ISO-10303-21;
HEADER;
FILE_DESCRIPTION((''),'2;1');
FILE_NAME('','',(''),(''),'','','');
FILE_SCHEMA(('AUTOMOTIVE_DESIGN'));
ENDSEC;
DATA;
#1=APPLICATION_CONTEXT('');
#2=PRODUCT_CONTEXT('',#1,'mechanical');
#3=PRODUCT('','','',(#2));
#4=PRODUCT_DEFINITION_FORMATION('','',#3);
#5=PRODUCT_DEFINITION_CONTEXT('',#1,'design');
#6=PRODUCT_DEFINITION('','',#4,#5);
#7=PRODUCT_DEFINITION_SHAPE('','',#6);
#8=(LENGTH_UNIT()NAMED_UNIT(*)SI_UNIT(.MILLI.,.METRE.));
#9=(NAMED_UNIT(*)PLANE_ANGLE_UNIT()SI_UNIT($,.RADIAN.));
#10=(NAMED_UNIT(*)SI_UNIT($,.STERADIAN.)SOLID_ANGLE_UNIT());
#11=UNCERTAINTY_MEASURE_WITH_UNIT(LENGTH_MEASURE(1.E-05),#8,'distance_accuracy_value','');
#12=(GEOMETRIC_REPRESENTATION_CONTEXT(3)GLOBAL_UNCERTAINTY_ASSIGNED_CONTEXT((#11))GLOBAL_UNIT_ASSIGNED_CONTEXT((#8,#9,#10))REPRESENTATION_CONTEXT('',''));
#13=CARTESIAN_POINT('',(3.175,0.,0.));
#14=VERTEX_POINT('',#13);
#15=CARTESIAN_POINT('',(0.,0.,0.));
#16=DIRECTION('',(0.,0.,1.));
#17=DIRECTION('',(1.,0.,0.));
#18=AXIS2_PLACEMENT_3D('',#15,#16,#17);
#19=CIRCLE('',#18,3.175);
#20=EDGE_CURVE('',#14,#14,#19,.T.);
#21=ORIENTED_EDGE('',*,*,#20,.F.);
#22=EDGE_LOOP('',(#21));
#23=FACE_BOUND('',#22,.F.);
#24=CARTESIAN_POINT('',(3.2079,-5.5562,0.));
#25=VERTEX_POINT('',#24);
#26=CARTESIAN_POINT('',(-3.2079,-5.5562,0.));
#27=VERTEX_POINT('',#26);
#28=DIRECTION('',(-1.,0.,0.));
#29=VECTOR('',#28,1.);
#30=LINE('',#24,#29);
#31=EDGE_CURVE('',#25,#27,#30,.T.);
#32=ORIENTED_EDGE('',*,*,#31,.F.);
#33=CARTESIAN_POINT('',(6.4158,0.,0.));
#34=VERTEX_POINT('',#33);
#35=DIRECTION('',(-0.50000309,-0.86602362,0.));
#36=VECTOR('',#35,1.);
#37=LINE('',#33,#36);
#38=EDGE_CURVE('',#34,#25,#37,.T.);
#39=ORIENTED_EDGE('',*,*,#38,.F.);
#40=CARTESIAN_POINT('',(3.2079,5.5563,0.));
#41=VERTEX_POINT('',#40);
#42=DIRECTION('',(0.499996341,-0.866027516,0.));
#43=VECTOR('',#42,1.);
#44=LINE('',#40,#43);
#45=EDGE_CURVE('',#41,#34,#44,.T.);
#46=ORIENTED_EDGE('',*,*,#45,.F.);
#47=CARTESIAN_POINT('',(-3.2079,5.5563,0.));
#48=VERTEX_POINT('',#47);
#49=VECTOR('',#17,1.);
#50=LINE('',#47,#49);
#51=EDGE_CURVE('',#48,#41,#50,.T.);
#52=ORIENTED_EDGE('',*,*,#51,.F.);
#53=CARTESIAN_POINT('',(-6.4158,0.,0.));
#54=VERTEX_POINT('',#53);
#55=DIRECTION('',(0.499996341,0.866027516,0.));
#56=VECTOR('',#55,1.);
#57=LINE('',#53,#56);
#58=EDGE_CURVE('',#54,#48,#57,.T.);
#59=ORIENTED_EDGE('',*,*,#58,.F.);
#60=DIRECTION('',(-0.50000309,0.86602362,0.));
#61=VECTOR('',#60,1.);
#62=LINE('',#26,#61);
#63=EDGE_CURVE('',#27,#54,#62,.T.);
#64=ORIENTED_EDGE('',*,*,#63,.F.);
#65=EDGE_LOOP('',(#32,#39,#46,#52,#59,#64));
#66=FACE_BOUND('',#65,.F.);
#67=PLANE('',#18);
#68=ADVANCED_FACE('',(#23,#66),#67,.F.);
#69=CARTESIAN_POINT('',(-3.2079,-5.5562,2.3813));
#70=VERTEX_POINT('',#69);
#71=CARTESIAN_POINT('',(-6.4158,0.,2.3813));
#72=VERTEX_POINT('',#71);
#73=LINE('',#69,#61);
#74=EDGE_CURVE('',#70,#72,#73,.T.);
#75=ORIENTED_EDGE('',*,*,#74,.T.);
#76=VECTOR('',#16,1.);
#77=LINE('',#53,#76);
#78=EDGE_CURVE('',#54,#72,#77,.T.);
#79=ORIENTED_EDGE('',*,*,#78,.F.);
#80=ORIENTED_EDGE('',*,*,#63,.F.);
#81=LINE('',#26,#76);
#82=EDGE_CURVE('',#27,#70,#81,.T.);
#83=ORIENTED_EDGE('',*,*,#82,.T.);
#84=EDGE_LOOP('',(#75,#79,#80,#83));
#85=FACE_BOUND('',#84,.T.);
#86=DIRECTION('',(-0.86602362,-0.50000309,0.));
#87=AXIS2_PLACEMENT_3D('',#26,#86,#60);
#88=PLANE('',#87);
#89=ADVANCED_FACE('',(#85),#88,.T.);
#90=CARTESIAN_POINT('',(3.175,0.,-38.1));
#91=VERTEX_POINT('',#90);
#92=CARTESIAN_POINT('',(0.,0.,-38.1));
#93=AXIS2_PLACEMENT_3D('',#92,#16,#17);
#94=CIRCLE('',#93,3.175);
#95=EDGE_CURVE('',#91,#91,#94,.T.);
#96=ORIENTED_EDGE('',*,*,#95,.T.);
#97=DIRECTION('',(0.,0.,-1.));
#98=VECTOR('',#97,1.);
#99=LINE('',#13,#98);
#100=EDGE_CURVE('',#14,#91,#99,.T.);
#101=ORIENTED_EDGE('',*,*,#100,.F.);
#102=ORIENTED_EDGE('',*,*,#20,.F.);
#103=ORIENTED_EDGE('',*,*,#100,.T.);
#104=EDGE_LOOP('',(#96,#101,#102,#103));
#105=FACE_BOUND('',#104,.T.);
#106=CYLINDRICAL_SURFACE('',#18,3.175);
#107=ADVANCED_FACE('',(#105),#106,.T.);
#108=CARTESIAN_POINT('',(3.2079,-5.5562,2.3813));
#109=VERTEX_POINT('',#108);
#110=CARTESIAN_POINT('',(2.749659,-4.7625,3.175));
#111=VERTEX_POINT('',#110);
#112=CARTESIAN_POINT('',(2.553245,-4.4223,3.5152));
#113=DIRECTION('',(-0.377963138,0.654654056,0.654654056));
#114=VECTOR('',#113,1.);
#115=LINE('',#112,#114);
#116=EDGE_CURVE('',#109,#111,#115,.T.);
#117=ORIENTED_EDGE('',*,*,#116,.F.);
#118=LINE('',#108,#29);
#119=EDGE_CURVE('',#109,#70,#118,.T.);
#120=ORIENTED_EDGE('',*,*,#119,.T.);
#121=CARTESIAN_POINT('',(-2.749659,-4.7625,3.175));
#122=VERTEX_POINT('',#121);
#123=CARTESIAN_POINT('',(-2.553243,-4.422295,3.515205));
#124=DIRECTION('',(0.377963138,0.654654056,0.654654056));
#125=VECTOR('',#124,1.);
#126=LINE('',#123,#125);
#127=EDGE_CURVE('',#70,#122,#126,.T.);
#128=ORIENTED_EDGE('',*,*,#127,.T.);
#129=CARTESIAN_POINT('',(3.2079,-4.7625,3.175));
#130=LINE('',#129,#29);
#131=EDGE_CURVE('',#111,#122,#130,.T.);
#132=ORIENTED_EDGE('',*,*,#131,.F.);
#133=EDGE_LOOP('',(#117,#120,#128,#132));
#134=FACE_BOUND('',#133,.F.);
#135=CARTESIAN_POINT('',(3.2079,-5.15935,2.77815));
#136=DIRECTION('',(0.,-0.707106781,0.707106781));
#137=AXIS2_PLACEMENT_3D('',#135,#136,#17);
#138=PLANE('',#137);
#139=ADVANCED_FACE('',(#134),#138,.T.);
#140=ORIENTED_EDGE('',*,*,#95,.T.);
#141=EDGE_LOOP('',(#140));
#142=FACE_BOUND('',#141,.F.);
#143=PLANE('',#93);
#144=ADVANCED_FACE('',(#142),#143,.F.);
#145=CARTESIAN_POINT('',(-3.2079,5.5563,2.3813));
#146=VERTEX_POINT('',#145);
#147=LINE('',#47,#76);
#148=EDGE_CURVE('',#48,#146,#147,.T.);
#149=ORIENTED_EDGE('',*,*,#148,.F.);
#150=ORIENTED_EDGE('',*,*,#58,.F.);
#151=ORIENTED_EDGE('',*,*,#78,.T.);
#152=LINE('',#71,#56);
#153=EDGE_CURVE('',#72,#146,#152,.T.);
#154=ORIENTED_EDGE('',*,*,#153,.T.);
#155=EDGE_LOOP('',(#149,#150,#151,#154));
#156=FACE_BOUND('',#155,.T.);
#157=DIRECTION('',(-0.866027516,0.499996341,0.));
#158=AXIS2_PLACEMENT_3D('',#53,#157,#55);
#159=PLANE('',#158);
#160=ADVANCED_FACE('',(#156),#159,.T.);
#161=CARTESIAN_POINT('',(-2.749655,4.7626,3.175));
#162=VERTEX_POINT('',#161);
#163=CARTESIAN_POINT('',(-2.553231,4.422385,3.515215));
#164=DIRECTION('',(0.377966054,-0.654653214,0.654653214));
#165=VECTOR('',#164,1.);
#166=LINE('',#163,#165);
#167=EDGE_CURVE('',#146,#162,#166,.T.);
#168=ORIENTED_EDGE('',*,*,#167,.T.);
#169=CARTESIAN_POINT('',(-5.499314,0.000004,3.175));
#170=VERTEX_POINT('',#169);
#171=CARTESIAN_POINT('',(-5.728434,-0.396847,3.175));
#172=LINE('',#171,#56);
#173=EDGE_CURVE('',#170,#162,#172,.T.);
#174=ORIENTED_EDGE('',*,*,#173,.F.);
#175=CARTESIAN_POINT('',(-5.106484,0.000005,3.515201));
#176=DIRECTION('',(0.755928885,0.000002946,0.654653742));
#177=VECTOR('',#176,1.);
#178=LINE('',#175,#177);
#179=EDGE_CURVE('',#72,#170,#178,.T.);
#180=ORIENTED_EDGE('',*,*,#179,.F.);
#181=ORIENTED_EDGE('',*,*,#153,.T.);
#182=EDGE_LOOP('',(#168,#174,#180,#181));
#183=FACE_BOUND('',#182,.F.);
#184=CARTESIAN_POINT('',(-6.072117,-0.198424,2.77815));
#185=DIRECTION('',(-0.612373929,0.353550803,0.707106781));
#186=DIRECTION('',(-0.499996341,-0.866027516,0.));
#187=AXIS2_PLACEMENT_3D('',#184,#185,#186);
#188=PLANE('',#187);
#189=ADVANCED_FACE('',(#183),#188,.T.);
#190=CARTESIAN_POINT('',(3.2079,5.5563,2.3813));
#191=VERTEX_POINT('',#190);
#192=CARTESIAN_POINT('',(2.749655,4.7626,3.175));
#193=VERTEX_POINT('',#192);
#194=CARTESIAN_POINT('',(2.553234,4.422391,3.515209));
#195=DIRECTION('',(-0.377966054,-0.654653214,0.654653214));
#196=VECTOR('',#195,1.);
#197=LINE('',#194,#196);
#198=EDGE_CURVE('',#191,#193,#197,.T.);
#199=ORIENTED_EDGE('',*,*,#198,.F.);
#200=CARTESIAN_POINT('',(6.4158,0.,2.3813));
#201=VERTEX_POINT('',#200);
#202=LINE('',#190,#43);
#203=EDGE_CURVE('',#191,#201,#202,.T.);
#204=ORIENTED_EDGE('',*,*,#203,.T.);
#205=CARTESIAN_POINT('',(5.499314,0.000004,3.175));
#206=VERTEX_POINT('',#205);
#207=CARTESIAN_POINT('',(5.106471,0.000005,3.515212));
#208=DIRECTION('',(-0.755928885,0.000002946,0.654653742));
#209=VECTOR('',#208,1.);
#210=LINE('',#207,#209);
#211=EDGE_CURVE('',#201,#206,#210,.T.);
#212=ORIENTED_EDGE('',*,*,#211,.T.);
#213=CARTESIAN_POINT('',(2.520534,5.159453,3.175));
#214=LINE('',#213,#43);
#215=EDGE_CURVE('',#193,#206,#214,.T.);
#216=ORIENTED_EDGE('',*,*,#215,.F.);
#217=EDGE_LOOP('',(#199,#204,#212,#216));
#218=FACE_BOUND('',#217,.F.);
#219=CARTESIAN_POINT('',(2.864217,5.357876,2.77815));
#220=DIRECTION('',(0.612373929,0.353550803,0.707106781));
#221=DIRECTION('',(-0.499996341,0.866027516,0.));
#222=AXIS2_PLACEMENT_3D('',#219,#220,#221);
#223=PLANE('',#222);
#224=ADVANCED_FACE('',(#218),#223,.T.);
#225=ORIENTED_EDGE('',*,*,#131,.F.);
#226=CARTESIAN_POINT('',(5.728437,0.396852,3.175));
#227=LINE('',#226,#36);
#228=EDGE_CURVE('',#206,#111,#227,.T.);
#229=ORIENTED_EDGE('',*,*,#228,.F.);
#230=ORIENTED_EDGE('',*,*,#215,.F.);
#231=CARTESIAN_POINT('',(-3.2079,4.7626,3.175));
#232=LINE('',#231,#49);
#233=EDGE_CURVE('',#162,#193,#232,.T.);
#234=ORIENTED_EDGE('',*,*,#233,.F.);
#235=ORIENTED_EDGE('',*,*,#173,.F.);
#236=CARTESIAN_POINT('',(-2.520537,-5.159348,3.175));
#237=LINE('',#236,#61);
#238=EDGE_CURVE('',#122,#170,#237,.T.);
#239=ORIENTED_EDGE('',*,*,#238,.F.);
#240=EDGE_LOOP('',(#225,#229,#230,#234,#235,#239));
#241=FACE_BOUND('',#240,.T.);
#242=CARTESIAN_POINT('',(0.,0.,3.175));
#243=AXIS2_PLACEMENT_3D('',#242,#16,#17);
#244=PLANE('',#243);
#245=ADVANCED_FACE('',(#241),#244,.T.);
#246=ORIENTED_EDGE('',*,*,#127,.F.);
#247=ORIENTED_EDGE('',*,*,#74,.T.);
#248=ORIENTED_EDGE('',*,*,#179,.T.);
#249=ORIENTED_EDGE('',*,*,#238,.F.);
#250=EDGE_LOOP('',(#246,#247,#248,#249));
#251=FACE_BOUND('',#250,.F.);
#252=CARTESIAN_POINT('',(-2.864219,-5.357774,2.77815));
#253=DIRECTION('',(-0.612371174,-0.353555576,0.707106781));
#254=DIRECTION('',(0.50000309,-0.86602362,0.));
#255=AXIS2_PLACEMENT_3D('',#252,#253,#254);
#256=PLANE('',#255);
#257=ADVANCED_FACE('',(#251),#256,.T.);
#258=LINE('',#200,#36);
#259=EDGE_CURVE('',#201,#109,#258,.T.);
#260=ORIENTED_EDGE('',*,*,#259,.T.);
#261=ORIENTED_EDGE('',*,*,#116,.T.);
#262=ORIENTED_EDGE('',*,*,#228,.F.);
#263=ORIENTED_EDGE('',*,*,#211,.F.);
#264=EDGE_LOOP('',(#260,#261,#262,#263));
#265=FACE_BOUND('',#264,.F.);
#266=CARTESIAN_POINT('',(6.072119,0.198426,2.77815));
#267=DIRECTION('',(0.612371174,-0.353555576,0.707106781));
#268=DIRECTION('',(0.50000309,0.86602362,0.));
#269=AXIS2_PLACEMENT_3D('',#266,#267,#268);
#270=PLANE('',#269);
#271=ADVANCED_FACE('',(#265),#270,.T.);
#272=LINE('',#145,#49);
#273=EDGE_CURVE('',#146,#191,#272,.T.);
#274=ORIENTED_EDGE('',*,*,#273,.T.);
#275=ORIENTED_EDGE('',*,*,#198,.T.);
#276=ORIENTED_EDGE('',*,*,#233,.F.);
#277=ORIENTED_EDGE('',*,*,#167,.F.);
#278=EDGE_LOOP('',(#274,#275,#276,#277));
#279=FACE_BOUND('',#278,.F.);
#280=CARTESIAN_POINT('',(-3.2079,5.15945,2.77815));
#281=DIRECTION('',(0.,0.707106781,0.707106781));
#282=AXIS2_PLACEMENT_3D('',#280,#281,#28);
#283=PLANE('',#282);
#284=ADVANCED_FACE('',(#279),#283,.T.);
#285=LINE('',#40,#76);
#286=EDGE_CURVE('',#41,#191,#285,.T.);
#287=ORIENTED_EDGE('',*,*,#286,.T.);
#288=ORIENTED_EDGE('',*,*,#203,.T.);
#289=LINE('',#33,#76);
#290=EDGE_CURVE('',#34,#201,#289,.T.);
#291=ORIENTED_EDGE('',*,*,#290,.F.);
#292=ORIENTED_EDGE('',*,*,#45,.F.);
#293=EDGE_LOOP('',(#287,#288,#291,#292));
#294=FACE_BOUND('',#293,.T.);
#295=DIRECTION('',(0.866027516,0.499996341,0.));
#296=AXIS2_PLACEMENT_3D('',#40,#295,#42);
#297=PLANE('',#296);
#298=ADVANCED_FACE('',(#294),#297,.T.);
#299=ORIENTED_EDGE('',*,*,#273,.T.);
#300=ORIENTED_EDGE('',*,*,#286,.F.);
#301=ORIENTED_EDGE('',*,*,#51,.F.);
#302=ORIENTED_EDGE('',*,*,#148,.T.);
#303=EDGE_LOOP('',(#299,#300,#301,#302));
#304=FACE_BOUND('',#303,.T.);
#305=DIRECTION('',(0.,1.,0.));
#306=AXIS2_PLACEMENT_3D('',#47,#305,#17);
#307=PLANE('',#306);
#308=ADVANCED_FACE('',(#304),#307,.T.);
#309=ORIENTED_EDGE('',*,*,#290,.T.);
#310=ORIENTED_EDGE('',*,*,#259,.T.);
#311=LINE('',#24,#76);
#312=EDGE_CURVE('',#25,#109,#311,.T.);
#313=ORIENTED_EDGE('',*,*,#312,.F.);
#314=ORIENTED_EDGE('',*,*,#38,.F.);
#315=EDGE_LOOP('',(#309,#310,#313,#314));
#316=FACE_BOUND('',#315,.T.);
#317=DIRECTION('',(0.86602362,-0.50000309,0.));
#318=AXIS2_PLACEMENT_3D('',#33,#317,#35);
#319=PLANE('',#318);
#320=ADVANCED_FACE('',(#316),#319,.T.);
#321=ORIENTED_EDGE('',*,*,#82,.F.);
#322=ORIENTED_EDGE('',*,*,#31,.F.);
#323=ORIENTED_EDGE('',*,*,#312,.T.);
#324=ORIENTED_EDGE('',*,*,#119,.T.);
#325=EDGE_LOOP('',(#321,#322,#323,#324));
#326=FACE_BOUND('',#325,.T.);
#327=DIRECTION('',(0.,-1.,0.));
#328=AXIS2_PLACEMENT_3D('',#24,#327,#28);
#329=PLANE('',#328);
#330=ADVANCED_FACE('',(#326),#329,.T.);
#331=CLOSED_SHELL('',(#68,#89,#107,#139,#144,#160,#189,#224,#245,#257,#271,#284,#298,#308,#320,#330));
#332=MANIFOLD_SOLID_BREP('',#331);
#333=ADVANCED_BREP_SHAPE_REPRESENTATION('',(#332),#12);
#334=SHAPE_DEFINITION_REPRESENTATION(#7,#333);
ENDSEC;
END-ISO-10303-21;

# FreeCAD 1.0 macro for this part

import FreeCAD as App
import Part
import Sketcher

V = App.Vector
Q = App.Units.Quantity


def edges_at(feature, points):
    """Names of the edges that pass closest to the given points."""
    edges = feature.Shape.Edges
    near = lambda p: min(range(len(edges)), key=lambda i: edges[i].distToShape(Part.Vertex(*p))[0])
    return sorted({f"Edge{near(p) + 1}" for p in points})


def add_polygon(sketch, points):
    """Adds a closed chain of lines whose ends are joined by coincident constraints."""
    first, n = sketch.GeometryCount, len(points)
    for a, b in zip(points, points[1:] + points[:1]):
        sketch.addGeometry(Part.LineSegment(App.Vector(*a, 0), App.Vector(*b, 0)), False)
    for i in range(n):
        sketch.addConstraint(Sketcher.Constraint("Coincident", first + i, 2, first + (i + 1) % n, 1))

doc = App.newDocument("Part")
body = doc.addObject("PartDesign::Body", "Body")

sketch1 = doc.addObject("Sketcher::SketchObject", "Sketch")
body.addObject(sketch1)
sketch1.AttachmentSupport = (doc.XY_Plane, [""])
sketch1.MapMode = "FlatFace"
sketch1.addGeometry(Part.Circle(V(0, 0, 0), V(0, 0, 1), 3.175), False)
sketch1.addConstraint(Sketcher.Constraint("Coincident", 0, 3, -1, 1))
sketch1.addConstraint(Sketcher.Constraint("Diameter", 0, Q("0.25 in")))
pad1 = doc.addObject("PartDesign::Pad", "Pad")
body.addObject(pad1)
pad1.Profile = sketch1
pad1.Length = Q("1.5 in")
pad1.Reversed = True

sketch2 = doc.addObject("Sketcher::SketchObject", "Sketch001")
body.addObject(sketch2)
sketch2.AttachmentSupport = (doc.XY_Plane, [""])
sketch2.MapMode = "FlatFace"
add_polygon(sketch2, [(6.4158, 0), (3.2079, 5.5563), (-3.2079, 5.5563), (-6.4158, 0), (-3.2079, -5.5562), (3.2079, -5.5562)])
sketch2.addConstraint(Sketcher.Constraint("Horizontal", 1))
sketch2.addConstraint(Sketcher.Constraint("Horizontal", 4))
sketch2.addConstraint(Sketcher.Constraint("Symmetric", 0, 2, 3, 2, -1, 1))
sketch2.addConstraint(Sketcher.Constraint("Symmetric", 2, 2, 5, 2, -1, 1))
sketch2.addConstraint(Sketcher.Constraint("PointOnObject", 2, 2, -1))
sketch2.addConstraint(Sketcher.Constraint("Parallel", 2, 5))
sketch2.addConstraint(Sketcher.Constraint("Vertical", 1, 2, 3, 2))
sketch2.addConstraint(Sketcher.Constraint("Angle", 0, Q("119.9998 deg")))
sketch2.addConstraint(Sketcher.Constraint("DistanceY", 3, 2, 1, 2, Q("0.4375 in")))
sketch2.addConstraint(Sketcher.Constraint("DistanceX", 1, 2, 1, 1, Q("0.2526 in")))
pad2 = doc.addObject("PartDesign::Pad", "Pad001")
body.addObject(pad2)
pad2.Profile = sketch2
pad2.Length = Q("0.125 in")
doc.recompute()

chamfer = doc.addObject("PartDesign::Chamfer", "Chamfer")
body.addObject(chamfer)
chamfer.Base = (pad2, edges_at(pad2, [
    (4.812, 2.778, 3.175),
    (0, 5.556, 3.175),
    (-4.812, 2.778, 3.175),
    (-4.812, -2.778, 3.175),
    (0, -5.556, 3.175),
    (4.812, -2.778, 3.175),
]))
chamfer.Size = Q("0.031248 in")

doc.recompute()
